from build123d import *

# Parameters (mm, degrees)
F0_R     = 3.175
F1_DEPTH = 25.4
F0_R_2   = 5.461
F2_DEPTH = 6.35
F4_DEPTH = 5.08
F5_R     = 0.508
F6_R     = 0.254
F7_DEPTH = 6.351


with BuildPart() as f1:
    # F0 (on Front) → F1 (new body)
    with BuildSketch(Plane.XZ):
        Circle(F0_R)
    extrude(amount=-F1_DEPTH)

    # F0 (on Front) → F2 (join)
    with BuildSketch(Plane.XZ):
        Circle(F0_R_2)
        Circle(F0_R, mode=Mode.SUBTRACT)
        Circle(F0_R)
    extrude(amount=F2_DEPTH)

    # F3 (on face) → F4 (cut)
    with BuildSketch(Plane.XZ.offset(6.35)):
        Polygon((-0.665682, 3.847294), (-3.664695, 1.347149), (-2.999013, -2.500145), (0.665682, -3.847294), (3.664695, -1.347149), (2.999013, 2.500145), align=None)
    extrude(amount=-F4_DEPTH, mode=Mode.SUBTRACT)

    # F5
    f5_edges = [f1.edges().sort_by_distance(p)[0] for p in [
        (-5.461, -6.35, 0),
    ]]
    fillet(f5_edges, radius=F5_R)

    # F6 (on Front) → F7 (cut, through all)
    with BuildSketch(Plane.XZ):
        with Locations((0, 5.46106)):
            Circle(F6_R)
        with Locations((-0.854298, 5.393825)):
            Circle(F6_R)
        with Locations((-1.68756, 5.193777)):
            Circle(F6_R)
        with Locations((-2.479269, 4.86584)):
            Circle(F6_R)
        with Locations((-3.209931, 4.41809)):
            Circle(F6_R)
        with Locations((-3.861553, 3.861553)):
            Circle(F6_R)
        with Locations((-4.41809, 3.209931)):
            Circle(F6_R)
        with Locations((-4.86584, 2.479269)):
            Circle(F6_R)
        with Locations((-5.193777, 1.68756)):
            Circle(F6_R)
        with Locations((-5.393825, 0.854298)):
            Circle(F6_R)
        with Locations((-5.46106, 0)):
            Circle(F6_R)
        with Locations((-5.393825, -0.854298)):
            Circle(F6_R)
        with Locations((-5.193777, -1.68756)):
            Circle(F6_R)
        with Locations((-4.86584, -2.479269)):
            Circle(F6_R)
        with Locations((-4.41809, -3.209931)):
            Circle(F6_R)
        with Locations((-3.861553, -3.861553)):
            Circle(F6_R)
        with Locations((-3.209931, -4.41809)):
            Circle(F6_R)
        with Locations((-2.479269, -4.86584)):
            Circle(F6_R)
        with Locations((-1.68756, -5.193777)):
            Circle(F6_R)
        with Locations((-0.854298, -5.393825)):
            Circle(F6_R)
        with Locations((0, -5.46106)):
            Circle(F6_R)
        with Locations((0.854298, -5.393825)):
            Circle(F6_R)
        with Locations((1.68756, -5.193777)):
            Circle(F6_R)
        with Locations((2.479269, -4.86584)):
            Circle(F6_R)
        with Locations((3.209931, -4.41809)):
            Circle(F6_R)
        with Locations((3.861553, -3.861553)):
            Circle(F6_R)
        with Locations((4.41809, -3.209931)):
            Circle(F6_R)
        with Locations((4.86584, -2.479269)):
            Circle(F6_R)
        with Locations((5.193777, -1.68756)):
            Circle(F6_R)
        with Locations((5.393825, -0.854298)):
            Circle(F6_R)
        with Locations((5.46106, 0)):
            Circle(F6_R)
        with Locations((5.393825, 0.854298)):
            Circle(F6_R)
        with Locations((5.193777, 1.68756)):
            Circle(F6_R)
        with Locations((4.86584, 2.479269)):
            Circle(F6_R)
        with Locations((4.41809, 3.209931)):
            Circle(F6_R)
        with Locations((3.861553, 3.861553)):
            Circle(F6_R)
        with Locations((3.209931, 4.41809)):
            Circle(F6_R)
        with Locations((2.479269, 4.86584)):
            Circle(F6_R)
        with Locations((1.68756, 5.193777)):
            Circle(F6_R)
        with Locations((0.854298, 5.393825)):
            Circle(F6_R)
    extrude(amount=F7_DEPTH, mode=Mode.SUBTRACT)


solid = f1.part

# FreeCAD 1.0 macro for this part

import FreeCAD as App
import Part
import Sketcher

V = App.Vector
Q = App.Units.Quantity


def edges_at(feature, points):
    """Names of the edges that pass closest to the given points."""
    edges = feature.Shape.Edges
    near = lambda p: min(range(len(edges)), key=lambda i: edges[i].distToShape(Part.Vertex(*p))[0])
    return sorted({f"Edge{near(p) + 1}" for p in points})


def add_polygon(sketch, points):
    """Adds a closed chain of lines whose ends are joined by coincident constraints."""
    first, n = sketch.GeometryCount, len(points)
    for a, b in zip(points, points[1:] + points[:1]):
        sketch.addGeometry(Part.LineSegment(App.Vector(*a, 0), App.Vector(*b, 0)), False)
    for i in range(n):
        sketch.addConstraint(Sketcher.Constraint("Coincident", first + i, 2, first + (i + 1) % n, 1))

doc = App.newDocument("Part")
params = doc.addObject("Spreadsheet::Sheet", "Params")
for row, (alias, value) in enumerate([
    ("sketch1_diameter", "0.25 in"),
    ("pad1_length", "1 in"),
    ("sketch2_diameter", "0.43 in"),
    ("pad2_length", "0.25 in"),
    ("pocket1_length", "0.2 in"),
    ("fillet_radius", "0.02 in"),
    ("sketch4_diameter", "0.02 in"),
], start=1):
    params.set(f"A{row}", alias)
    params.set(f"B{row}", "=" + value)
    params.setAlias(f"B{row}", alias)

body = doc.addObject("PartDesign::Body", "Body")

# Sketch on XZ plane
sketch1 = body.newObject("Sketcher::SketchObject", "Sketch")
sketch1.AttachmentSupport = (doc.getObject("XZ_Plane"), [""])
sketch1.MapMode = "FlatFace"
sketch1.addGeometry(Part.Circle(V(0, 0, 0), V(0, 0, 1), 3.175), False)
sketch1.addConstraint(Sketcher.Constraint("Coincident", 0, 3, -1, 1))
sketch1.addConstraint(Sketcher.Constraint("Diameter", 0, Q("0.25 in")))
sketch1.setExpression("Constraints[1]", "Params.sketch1_diameter")
pad1 = body.newObject("PartDesign::Pad", "Pad")
pad1.Profile = sketch1
pad1.setExpression("Length", "Params.pad1_length")
pad1.Reversed = True

# Sketch on XZ plane
sketch2 = body.newObject("Sketcher::SketchObject", "Sketch001")
sketch2.AttachmentSupport = (doc.getObject("XZ_Plane"), [""])
sketch2.MapMode = "FlatFace"
sketch2.addGeometry(Part.Circle(V(0, 0, 0), V(0, 0, 1), 5.461), False)
sketch2.addConstraint(Sketcher.Constraint("Coincident", 0, 3, -1, 1))
sketch2.addConstraint(Sketcher.Constraint("Diameter", 0, Q("0.43 in")))
sketch2.setExpression("Constraints[1]", "Params.sketch2_diameter")
pad2 = body.newObject("PartDesign::Pad", "Pad001")
pad2.Profile = sketch2
pad2.setExpression("Length", "Params.pad2_length")

# Sketch on XZ plane
sketch3 = body.newObject("Sketcher::SketchObject", "Sketch002")
sketch3.AttachmentSupport = (doc.getObject("XZ_Plane"), [""])
sketch3.MapMode = "FlatFace"
sketch3.AttachmentOffset = App.Placement(V(0, 0, 0.25 * 25.4), App.Rotation())
add_polygon(sketch3, [(-0.665682, 3.847294), (-3.664695, 1.347149), (-2.999013, -2.500145), (0.665682, -3.847294), (3.664695, -1.347149), (2.999013, 2.500145)])  # lines 0-5
sketch3.addConstraint(Sketcher.Constraint("Symmetric", 0, 2, 3, 2, -1, 1))
sketch3.addConstraint(Sketcher.Constraint("Symmetric", 1, 2, 4, 2, -1, 1))
sketch3.addConstraint(Sketcher.Constraint("Symmetric", 2, 2, 5, 2, -1, 1))
sketch3.addConstraint(Sketcher.Constraint("Equal", 0, 1))
sketch3.addConstraint(Sketcher.Constraint("Equal", 1, 2))
sketch3.addConstraint(Sketcher.Constraint("Distance", 0, Q("3.90446 mm")))
sketch3.addConstraint(Sketcher.Constraint("DistanceY", -1, 1, 0, 2, Q("1.347149 mm")))
sketch3.addConstraint(Sketcher.Constraint("DistanceX", -1, 1, 2, 2, Q("0.665682 mm")))
sketch3.addConstraint(Sketcher.Constraint("DistanceX", 0, 2, 1, 2, Q("0.665682 mm")))
pocket1 = body.newObject("PartDesign::Pocket", "Pocket")
pocket1.Profile = sketch3
pocket1.setExpression("Length", "Params.pocket1_length")
doc.recompute()

fillet = body.newObject("PartDesign::Fillet", "Fillet")
fillet.Base = (pocket1, edges_at(pocket1, [(-5.461, -6.35, 0)]))
fillet.setExpression("Radius", "Params.fillet_radius")

# Sketch on XZ plane
sketch4 = body.newObject("Sketcher::SketchObject", "Sketch003")
sketch4.AttachmentSupport = (doc.getObject("XZ_Plane"), [""])
sketch4.MapMode = "FlatFace"
sketch4.addGeometry(Part.Circle(V(0, 5.46106, 0), V(0, 0, 1), 0.254), False)
sketch4.addGeometry(Part.Circle(V(-0.854298, 5.393825, 0), V(0, 0, 1), 0.254), False)
sketch4.addGeometry(Part.Circle(V(-1.68756, 5.193777, 0), V(0, 0, 1), 0.254), False)
sketch4.addGeometry(Part.Circle(V(-2.479269, 4.86584, 0), V(0, 0, 1), 0.254), False)
sketch4.addGeometry(Part.Circle(V(-3.209931, 4.41809, 0), V(0, 0, 1), 0.254), False)
sketch4.addGeometry(Part.Circle(V(-3.861553, 3.861553, 0), V(0, 0, 1), 0.254), False)
sketch4.addGeometry(Part.Circle(V(-4.41809, 3.209931, 0), V(0, 0, 1), 0.254), False)
sketch4.addGeometry(Part.Circle(V(-4.86584, 2.479269, 0), V(0, 0, 1), 0.254), False)
sketch4.addGeometry(Part.Circle(V(-5.193777, 1.68756, 0), V(0, 0, 1), 0.254), False)
sketch4.addGeometry(Part.Circle(V(-5.393825, 0.854298, 0), V(0, 0, 1), 0.254), False)
sketch4.addGeometry(Part.Circle(V(-5.46106, 0, 0), V(0, 0, 1), 0.254), False)
sketch4.addGeometry(Part.Circle(V(-5.393825, -0.854298, 0), V(0, 0, 1), 0.254), False)
sketch4.addGeometry(Part.Circle(V(-5.193777, -1.68756, 0), V(0, 0, 1), 0.254), False)
sketch4.addGeometry(Part.Circle(V(-4.86584, -2.479269, 0), V(0, 0, 1), 0.254), False)
sketch4.addGeometry(Part.Circle(V(-4.41809, -3.209931, 0), V(0, 0, 1), 0.254), False)
sketch4.addGeometry(Part.Circle(V(-3.861553, -3.861553, 0), V(0, 0, 1), 0.254), False)
sketch4.addGeometry(Part.Circle(V(-3.209931, -4.41809, 0), V(0, 0, 1), 0.254), False)
sketch4.addGeometry(Part.Circle(V(-2.479269, -4.86584, 0), V(0, 0, 1), 0.254), False)
sketch4.addGeometry(Part.Circle(V(-1.68756, -5.193777, 0), V(0, 0, 1), 0.254), False)
sketch4.addGeometry(Part.Circle(V(-0.854298, -5.393825, 0), V(0, 0, 1), 0.254), False)
sketch4.addGeometry(Part.Circle(V(0, -5.46106, 0), V(0, 0, 1), 0.254), False)
sketch4.addGeometry(Part.Circle(V(0.854298, -5.393825, 0), V(0, 0, 1), 0.254), False)
sketch4.addGeometry(Part.Circle(V(1.68756, -5.193777, 0), V(0, 0, 1), 0.254), False)
sketch4.addGeometry(Part.Circle(V(2.479269, -4.86584, 0), V(0, 0, 1), 0.254), False)
sketch4.addGeometry(Part.Circle(V(3.209931, -4.41809, 0), V(0, 0, 1), 0.254), False)
sketch4.addGeometry(Part.Circle(V(3.861553, -3.861553, 0), V(0, 0, 1), 0.254), False)
sketch4.addGeometry(Part.Circle(V(4.41809, -3.209931, 0), V(0, 0, 1), 0.254), False)
sketch4.addGeometry(Part.Circle(V(4.86584, -2.479269, 0), V(0, 0, 1), 0.254), False)
sketch4.addGeometry(Part.Circle(V(5.193777, -1.68756, 0), V(0, 0, 1), 0.254), False)
sketch4.addGeometry(Part.Circle(V(5.393825, -0.854298, 0), V(0, 0, 1), 0.254), False)
sketch4.addGeometry(Part.Circle(V(5.46106, 0, 0), V(0, 0, 1), 0.254), False)
sketch4.addGeometry(Part.Circle(V(5.393825, 0.854298, 0), V(0, 0, 1), 0.254), False)
sketch4.addGeometry(Part.Circle(V(5.193777, 1.68756, 0), V(0, 0, 1), 0.254), False)
sketch4.addGeometry(Part.Circle(V(4.86584, 2.479269, 0), V(0, 0, 1), 0.254), False)
sketch4.addGeometry(Part.Circle(V(4.41809, 3.209931, 0), V(0, 0, 1), 0.254), False)
sketch4.addGeometry(Part.Circle(V(3.861553, 3.861553, 0), V(0, 0, 1), 0.254), False)
sketch4.addGeometry(Part.Circle(V(3.209931, 4.41809, 0), V(0, 0, 1), 0.254), False)
sketch4.addGeometry(Part.Circle(V(2.479269, 4.86584, 0), V(0, 0, 1), 0.254), False)
sketch4.addGeometry(Part.Circle(V(1.68756, 5.193777, 0), V(0, 0, 1), 0.254), False)
sketch4.addGeometry(Part.Circle(V(0.854298, 5.393825, 0), V(0, 0, 1), 0.254), False)
sketch4.addConstraint(Sketcher.Constraint("Equal", 0, 1))
sketch4.addConstraint(Sketcher.Constraint("Equal", 1, 2))
sketch4.addConstraint(Sketcher.Constraint("Equal", 2, 3))
sketch4.addConstraint(Sketcher.Constraint("Equal", 3, 4))
sketch4.addConstraint(Sketcher.Constraint("Equal", 4, 5))
sketch4.addConstraint(Sketcher.Constraint("Equal", 5, 6))
sketch4.addConstraint(Sketcher.Constraint("Equal", 6, 7))
sketch4.addConstraint(Sketcher.Constraint("Equal", 7, 8))
sketch4.addConstraint(Sketcher.Constraint("Equal", 8, 9))
sketch4.addConstraint(Sketcher.Constraint("Equal", 9, 10))
sketch4.addConstraint(Sketcher.Constraint("Equal", 10, 11))
sketch4.addConstraint(Sketcher.Constraint("Equal", 11, 12))
sketch4.addConstraint(Sketcher.Constraint("Equal", 12, 13))
sketch4.addConstraint(Sketcher.Constraint("Equal", 13, 14))
sketch4.addConstraint(Sketcher.Constraint("Equal", 14, 15))
sketch4.addConstraint(Sketcher.Constraint("Equal", 15, 16))
sketch4.addConstraint(Sketcher.Constraint("Equal", 16, 17))
sketch4.addConstraint(Sketcher.Constraint("Equal", 17, 18))
sketch4.addConstraint(Sketcher.Constraint("Equal", 18, 19))
sketch4.addConstraint(Sketcher.Constraint("Equal", 19, 20))
sketch4.addConstraint(Sketcher.Constraint("Equal", 20, 21))
sketch4.addConstraint(Sketcher.Constraint("Equal", 21, 22))
sketch4.addConstraint(Sketcher.Constraint("Equal", 22, 23))
sketch4.addConstraint(Sketcher.Constraint("Equal", 23, 24))
sketch4.addConstraint(Sketcher.Constraint("Equal", 24, 25))
sketch4.addConstraint(Sketcher.Constraint("Equal", 25, 26))
sketch4.addConstraint(Sketcher.Constraint("Equal", 26, 27))
sketch4.addConstraint(Sketcher.Constraint("Equal", 27, 28))
sketch4.addConstraint(Sketcher.Constraint("Equal", 28, 29))
sketch4.addConstraint(Sketcher.Constraint("Equal", 29, 30))
sketch4.addConstraint(Sketcher.Constraint("Equal", 30, 31))
sketch4.addConstraint(Sketcher.Constraint("Equal", 31, 32))
sketch4.addConstraint(Sketcher.Constraint("Equal", 32, 33))
sketch4.addConstraint(Sketcher.Constraint("Equal", 33, 34))
sketch4.addConstraint(Sketcher.Constraint("Equal", 34, 35))
sketch4.addConstraint(Sketcher.Constraint("Equal", 35, 36))
sketch4.addConstraint(Sketcher.Constraint("Equal", 36, 37))
sketch4.addConstraint(Sketcher.Constraint("Equal", 37, 38))
sketch4.addConstraint(Sketcher.Constraint("Equal", 38, 39))
sketch4.addConstraint(Sketcher.Constraint("Symmetric", 0, 3, 20, 3, -1, 1))
sketch4.addConstraint(Sketcher.Constraint("Symmetric", 1, 3, 21, 3, -1, 1))
sketch4.addConstraint(Sketcher.Constraint("Symmetric", 2, 3, 22, 3, -1, 1))
sketch4.addConstraint(Sketcher.Constraint("Symmetric", 3, 3, 23, 3, -1, 1))
sketch4.addConstraint(Sketcher.Constraint("Symmetric", 4, 3, 24, 3, -1, 1))
sketch4.addConstraint(Sketcher.Constraint("Symmetric", 5, 3, 25, 3, -1, 1))
sketch4.addConstraint(Sketcher.Constraint("Symmetric", 6, 3, 26, 3, -1, 1))
sketch4.addConstraint(Sketcher.Constraint("Symmetric", 7, 3, 27, 3, -1, 1))
sketch4.addConstraint(Sketcher.Constraint("Symmetric", 8, 3, 28, 3, -1, 1))
sketch4.addConstraint(Sketcher.Constraint("Symmetric", 9, 3, 29, 3, -1, 1))
sketch4.addConstraint(Sketcher.Constraint("Symmetric", 10, 3, 30, 3, -1, 1))
sketch4.addConstraint(Sketcher.Constraint("Symmetric", 11, 3, 31, 3, -1, 1))
sketch4.addConstraint(Sketcher.Constraint("Symmetric", 12, 3, 32, 3, -1, 1))
sketch4.addConstraint(Sketcher.Constraint("Symmetric", 13, 3, 33, 3, -1, 1))
sketch4.addConstraint(Sketcher.Constraint("Symmetric", 14, 3, 34, 3, -1, 1))
sketch4.addConstraint(Sketcher.Constraint("Symmetric", 15, 3, 35, 3, -1, 1))
sketch4.addConstraint(Sketcher.Constraint("Symmetric", 16, 3, 36, 3, -1, 1))
sketch4.addConstraint(Sketcher.Constraint("Symmetric", 17, 3, 37, 3, -1, 1))
sketch4.addConstraint(Sketcher.Constraint("Symmetric", 18, 3, 38, 3, -1, 1))
sketch4.addConstraint(Sketcher.Constraint("Symmetric", 19, 3, 39, 3, -1, 1))
sketch4.addConstraint(Sketcher.Constraint("Symmetric", 19, 3, 21, 3, -2))
sketch4.addConstraint(Sketcher.Constraint("Symmetric", 18, 3, 22, 3, -2))
sketch4.addConstraint(Sketcher.Constraint("Symmetric", 17, 3, 23, 3, -2))
sketch4.addConstraint(Sketcher.Constraint("Symmetric", 16, 3, 24, 3, -2))
sketch4.addConstraint(Sketcher.Constraint("Symmetric", 15, 3, 25, 3, -2))
sketch4.addConstraint(Sketcher.Constraint("Symmetric", 14, 3, 26, 3, -2))
sketch4.addConstraint(Sketcher.Constraint("Symmetric", 13, 3, 27, 3, -2))
sketch4.addConstraint(Sketcher.Constraint("Symmetric", 12, 3, 28, 3, -2))
sketch4.addConstraint(Sketcher.Constraint("Symmetric", 11, 3, 29, 3, -2))
sketch4.addConstraint(Sketcher.Constraint("PointOnObject", 0, 3, -2))
sketch4.addConstraint(Sketcher.Constraint("PointOnObject", 10, 3, -1))
sketch4.addConstraint(Sketcher.Constraint("Diameter", 0, Q("0.02 in")))
sketch4.addConstraint(Sketcher.Constraint("DistanceX", 1, 3, -1, 1, Q("0.854298 mm")))
sketch4.addConstraint(Sketcher.Constraint("DistanceY", -1, 1, 9, 3, Q("0.854298 mm")))
sketch4.addConstraint(Sketcher.Constraint("DistanceY", -1, 1, 0, 3, Q("5.46106 mm")))
sketch4.addConstraint(Sketcher.Constraint("DistanceX", 2, 3, -1, 1, Q("1.68756 mm")))
sketch4.addConstraint(Sketcher.Constraint("DistanceX", 3, 3, -1, 1, Q("2.479269 mm")))
sketch4.addConstraint(Sketcher.Constraint("DistanceY", -1, 1, 3, 3, Q("4.86584 mm")))
sketch4.addConstraint(Sketcher.Constraint("DistanceX", 4, 3, -1, 1, Q("3.209931 mm")))
sketch4.addConstraint(Sketcher.Constraint("DistanceY", -1, 1, 4, 3, Q("4.41809 mm")))
sketch4.addConstraint(Sketcher.Constraint("DistanceX", 6, 3, -1, 1, Q("4.41809 mm")))
sketch4.addConstraint(Sketcher.Constraint("DistanceY", -1, 1, 6, 3, Q("3.209931 mm")))
sketch4.addConstraint(Sketcher.Constraint("DistanceX", 7, 3, -1, 1, Q("4.86584 mm")))
sketch4.addConstraint(Sketcher.Constraint("DistanceY", -1, 1, 7, 3, Q("2.479269 mm")))
sketch4.addConstraint(Sketcher.Constraint("DistanceY", -1, 1, 8, 3, Q("1.68756 mm")))
sketch4.addConstraint(Sketcher.Constraint("DistanceX", 10, 3, -1, 1, Q("5.46106 mm")))
sketch4.addConstraint(Sketcher.Constraint("DistanceX", 5, 3, 4, 3, Q("0.651622 mm")))
sketch4.addConstraint(Sketcher.Constraint("DistanceY", 5, 3, 1, 3, Q("1.532272 mm")))
sketch4.addConstraint(Sketcher.Constraint("DistanceY", 6, 3, 5, 3, Q("0.651622 mm")))
sketch4.addConstraint(Sketcher.Constraint("DistanceX", 9, 3, 5, 3, Q("1.532272 mm")))
sketch4.addConstraint(Sketcher.Constraint("DistanceY", -1, 1, 2, 3, Q("5.193777 mm")))
sketch4.addConstraint(Sketcher.Constraint("DistanceX", 8, 3, -1, 1, Q("5.193777 mm")))
sketch4.setExpression("Constraints[70]", "Params.sketch4_diameter")
pocket2 = body.newObject("PartDesign::Pocket", "Pocket001")
pocket2.Profile = sketch4
pocket2.Type = "ThroughAll"
pocket2.Reversed = True

doc.recompute()
